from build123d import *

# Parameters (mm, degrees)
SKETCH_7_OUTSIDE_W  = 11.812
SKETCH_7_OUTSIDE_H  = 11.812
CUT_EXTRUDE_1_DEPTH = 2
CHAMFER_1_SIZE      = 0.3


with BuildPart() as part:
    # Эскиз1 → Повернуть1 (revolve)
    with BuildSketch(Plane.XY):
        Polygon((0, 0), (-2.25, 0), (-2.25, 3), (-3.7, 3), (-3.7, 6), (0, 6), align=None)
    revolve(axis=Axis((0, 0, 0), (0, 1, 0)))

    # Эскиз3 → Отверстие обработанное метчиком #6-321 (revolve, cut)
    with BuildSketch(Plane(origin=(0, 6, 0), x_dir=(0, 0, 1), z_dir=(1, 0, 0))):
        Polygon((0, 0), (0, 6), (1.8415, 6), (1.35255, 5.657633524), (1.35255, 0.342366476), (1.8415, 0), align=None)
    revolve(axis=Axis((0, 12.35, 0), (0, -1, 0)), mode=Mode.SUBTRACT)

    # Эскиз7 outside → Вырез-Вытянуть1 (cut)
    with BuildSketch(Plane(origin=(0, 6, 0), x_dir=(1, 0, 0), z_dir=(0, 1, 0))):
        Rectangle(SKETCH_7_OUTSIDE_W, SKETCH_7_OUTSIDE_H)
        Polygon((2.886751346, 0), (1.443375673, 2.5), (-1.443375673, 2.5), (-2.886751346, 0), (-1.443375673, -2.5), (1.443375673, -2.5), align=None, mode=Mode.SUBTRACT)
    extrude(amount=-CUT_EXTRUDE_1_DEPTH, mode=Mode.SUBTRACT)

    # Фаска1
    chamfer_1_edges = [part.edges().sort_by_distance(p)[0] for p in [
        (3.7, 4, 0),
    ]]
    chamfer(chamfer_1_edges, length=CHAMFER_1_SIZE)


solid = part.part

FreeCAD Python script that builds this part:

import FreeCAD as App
import Part
import Sketcher

V = App.Vector
Q = App.Units.Quantity


def edges_at(feature, points):
    """Names of the edges that pass closest to the given points."""
    edges = feature.Shape.Edges
    near = lambda p: min(range(len(edges)), key=lambda i: edges[i].distToShape(Part.Vertex(*p))[0])
    return sorted({f"Edge{near(p) + 1}" for p in points})

doc = App.newDocument("Part")
body = doc.addObject("PartDesign::Body", "Body")

# Sketch on XY plane
sketch1 = doc.addObject("Sketcher::SketchObject", "Sketch")
body.addObject(sketch1)
sketch1.AttachmentSupport = (doc.XY_Plane, [""])
sketch1.MapMode = "FlatFace"
sketch1.addGeometry([
    Part.LineSegment(V(-2.25, 0, 0), V(0, 0, 0)),  # 0
    Part.LineSegment(V(0, 0, 0), V(0, 6, 0)),  # 1
    Part.LineSegment(V(0, 6, 0), V(-3.7, 6, 0)),  # 2
    Part.LineSegment(V(-3.7, 6, 0), V(-3.7, 3, 0)),  # 3
    Part.LineSegment(V(-3.7, 3, 0), V(-2.25, 3, 0)),  # 4
    Part.LineSegment(V(-2.25, 3, 0), V(-2.25, 0, 0)),  # 5
], False)
sketch1.addConstraint([
    Sketcher.Constraint("Coincident", 0, 2, 1, 1),
    Sketcher.Constraint("Coincident", 1, 2, 2, 1),
    Sketcher.Constraint("Coincident", 2, 2, 3, 1),
    Sketcher.Constraint("Coincident", 3, 2, 4, 1),
    Sketcher.Constraint("Coincident", 4, 2, 5, 1),
    Sketcher.Constraint("Coincident", 5, 2, 0, 1),
    Sketcher.Constraint("Horizontal", 0),
    Sketcher.Constraint("Vertical", 1),
    Sketcher.Constraint("Horizontal", 2),
    Sketcher.Constraint("Vertical", 3),
    Sketcher.Constraint("Horizontal", 4),
    Sketcher.Constraint("Vertical", 5),
    Sketcher.Constraint("Coincident", 0, 2, -1, 1),
    Sketcher.Constraint("Equal", 3, 5),
    Sketcher.Constraint("DistanceY", 1, 1, 1, 2, Q("6 mm")),
    Sketcher.Constraint("DistanceX", 2, 2, 2, 1, Q("3.7 mm")),
    Sketcher.Constraint("DistanceX", 0, 1, 0, 2, Q("2.25 mm")),
])
revolution = doc.addObject("PartDesign::Revolution", "Revolution")
body.addObject(revolution)
revolution.Profile = sketch1
revolution.ReferenceAxis = (sketch1, ["V_Axis"])
revolution.Angle = 360

# Sketch on YZ plane
sketch2 = doc.addObject("Sketcher::SketchObject", "Sketch001")
body.addObject(sketch2)
sketch2.AttachmentSupport = (doc.YZ_Plane, [""])
sketch2.MapMode = "FlatFace"
sketch2.addGeometry([
    Part.LineSegment(V(0, 0, 0), V(6, 0, 0)),  # 0
    Part.LineSegment(V(6, 0, 0), V(6, 1.8415, 0)),  # 1
    Part.LineSegment(V(6, 1.8415, 0), V(5.657634, 1.35255, 0)),  # 2
    Part.LineSegment(V(5.657634, 1.35255, 0), V(0.342366, 1.35255, 0)),  # 3
    Part.LineSegment(V(0.342366, 1.35255, 0), V(0, 1.8415, 0)),  # 4
    Part.LineSegment(V(0, 1.8415, 0), V(0, 0, 0)),  # 5
], False)
sketch2.addConstraint([
    Sketcher.Constraint("Coincident", 0, 2, 1, 1),
    Sketcher.Constraint("Coincident", 1, 2, 2, 1),
    Sketcher.Constraint("Coincident", 2, 2, 3, 1),
    Sketcher.Constraint("Coincident", 3, 2, 4, 1),
    Sketcher.Constraint("Coincident", 4, 2, 5, 1),
    Sketcher.Constraint("Coincident", 5, 2, 0, 1),
    Sketcher.Constraint("Horizontal", 0),
    Sketcher.Constraint("Vertical", 1),
    Sketcher.Constraint("Horizontal", 3),
    Sketcher.Constraint("Vertical", 5),
    Sketcher.Constraint("Coincident", 5, 2, -1, 1),
    Sketcher.Constraint("Horizontal", 1, 2, 4, 2),
    Sketcher.Constraint("Equal", 2, 4),
    Sketcher.Constraint("DistanceX", 0, 1, 0, 2, Q("6 mm")),
    Sketcher.Constraint("Angle", 2, Q("-125 deg")),
    Sketcher.Constraint("DistanceY", 1, 1, 1, 2, Q("1.8415 mm")),
    Sketcher.Constraint("DistanceX", 3, 2, 3, 1, Q("5.315267 mm")),
])
groove = doc.addObject("PartDesign::Groove", "Groove")
body.addObject(groove)
groove.Profile = sketch2
groove.ReferenceAxis = (sketch2, ["H_Axis"])
groove.Angle = 360

# Sketch on XZ plane
sketch3 = doc.addObject("Sketcher::SketchObject", "Sketch002")
body.addObject(sketch3)
sketch3.AttachmentSupport = (doc.XZ_Plane, [""])
sketch3.MapMode = "FlatFace"
sketch3.AttachmentOffset = App.Placement(V(0, 0, -6), App.Rotation())
sketch3.addGeometry([
    Part.LineSegment(V(-5.906, -5.906, 0), V(-5.906, 5.906, 0)),  # 0
    Part.LineSegment(V(-5.906, 5.906, 0), V(5.906, 5.906, 0)),  # 1
    Part.LineSegment(V(5.906, 5.906, 0), V(5.906, -5.906, 0)),  # 2
    Part.LineSegment(V(5.906, -5.906, 0), V(-5.906, -5.906, 0)),  # 3
    Part.LineSegment(V(1.443376, -2.5, 0), V(2.886751, 0, 0)),  # 4
    Part.LineSegment(V(2.886751, 0, 0), V(1.443376, 2.5, 0)),  # 5
    Part.LineSegment(V(1.443376, 2.5, 0), V(-1.443376, 2.5, 0)),  # 6
    Part.LineSegment(V(-1.443376, 2.5, 0), V(-2.886751, 0, 0)),  # 7
    Part.LineSegment(V(-2.886751, 0, 0), V(-1.443376, -2.5, 0)),  # 8
    Part.LineSegment(V(-1.443376, -2.5, 0), V(1.443376, -2.5, 0)),  # 9
], False)
sketch3.addConstraint([
    Sketcher.Constraint("Coincident", 0, 2, 1, 1),
    Sketcher.Constraint("Coincident", 1, 2, 2, 1),
    Sketcher.Constraint("Coincident", 2, 2, 3, 1),
    Sketcher.Constraint("Coincident", 3, 2, 0, 1),
    Sketcher.Constraint("Coincident", 4, 2, 5, 1),
    Sketcher.Constraint("Coincident", 5, 2, 6, 1),
    Sketcher.Constraint("Coincident", 6, 2, 7, 1),
    Sketcher.Constraint("Coincident", 7, 2, 8, 1),
    Sketcher.Constraint("Coincident", 8, 2, 9, 1),
    Sketcher.Constraint("Coincident", 9, 2, 4, 1),
    Sketcher.Constraint("Vertical", 0),
    Sketcher.Constraint("Horizontal", 1),
    Sketcher.Constraint("Vertical", 2),
    Sketcher.Constraint("Horizontal", 3),
    Sketcher.Constraint("Horizontal", 6),
    Sketcher.Constraint("Horizontal", 9),
    Sketcher.Constraint("Symmetric", 0, 2, 2, 2, -1, 1),
    Sketcher.Constraint("Symmetric", 4, 2, 7, 2, -1, 1),
    Sketcher.Constraint("Symmetric", 5, 2, 8, 2, -1, 1),
    Sketcher.Constraint("PointOnObject", 4, 2, -1),
    Sketcher.Constraint("Parallel", 4, 7),
    Sketcher.Constraint("Vertical", 6, 2, 8, 2),
    Sketcher.Constraint("Equal", 3, 0),
    Sketcher.Constraint("Angle", 4, Q("60 deg")),
    Sketcher.Constraint("DistanceY", 8, 2, 6, 2, Q("5 mm")),
    Sketcher.Constraint("DistanceX", 1, 1, 1, 2, Q("11.812 mm")),
    Sketcher.Constraint("DistanceX", 6, 2, 6, 1, Q("2.886751 mm")),
])
pocket1 = doc.addObject("PartDesign::Pocket", "Pocket")
body.addObject(pocket1)
pocket1.Profile = sketch3
pocket1.Length = 2
pocket1.Reversed = True
doc.recompute()

chamfer = doc.addObject("PartDesign::Chamfer", "Chamfer")
body.addObject(chamfer)
chamfer.Base = (pocket1, edges_at(pocket1, [(3.7, 4, 0)]))
chamfer.Size = 0.3

doc.recompute()
